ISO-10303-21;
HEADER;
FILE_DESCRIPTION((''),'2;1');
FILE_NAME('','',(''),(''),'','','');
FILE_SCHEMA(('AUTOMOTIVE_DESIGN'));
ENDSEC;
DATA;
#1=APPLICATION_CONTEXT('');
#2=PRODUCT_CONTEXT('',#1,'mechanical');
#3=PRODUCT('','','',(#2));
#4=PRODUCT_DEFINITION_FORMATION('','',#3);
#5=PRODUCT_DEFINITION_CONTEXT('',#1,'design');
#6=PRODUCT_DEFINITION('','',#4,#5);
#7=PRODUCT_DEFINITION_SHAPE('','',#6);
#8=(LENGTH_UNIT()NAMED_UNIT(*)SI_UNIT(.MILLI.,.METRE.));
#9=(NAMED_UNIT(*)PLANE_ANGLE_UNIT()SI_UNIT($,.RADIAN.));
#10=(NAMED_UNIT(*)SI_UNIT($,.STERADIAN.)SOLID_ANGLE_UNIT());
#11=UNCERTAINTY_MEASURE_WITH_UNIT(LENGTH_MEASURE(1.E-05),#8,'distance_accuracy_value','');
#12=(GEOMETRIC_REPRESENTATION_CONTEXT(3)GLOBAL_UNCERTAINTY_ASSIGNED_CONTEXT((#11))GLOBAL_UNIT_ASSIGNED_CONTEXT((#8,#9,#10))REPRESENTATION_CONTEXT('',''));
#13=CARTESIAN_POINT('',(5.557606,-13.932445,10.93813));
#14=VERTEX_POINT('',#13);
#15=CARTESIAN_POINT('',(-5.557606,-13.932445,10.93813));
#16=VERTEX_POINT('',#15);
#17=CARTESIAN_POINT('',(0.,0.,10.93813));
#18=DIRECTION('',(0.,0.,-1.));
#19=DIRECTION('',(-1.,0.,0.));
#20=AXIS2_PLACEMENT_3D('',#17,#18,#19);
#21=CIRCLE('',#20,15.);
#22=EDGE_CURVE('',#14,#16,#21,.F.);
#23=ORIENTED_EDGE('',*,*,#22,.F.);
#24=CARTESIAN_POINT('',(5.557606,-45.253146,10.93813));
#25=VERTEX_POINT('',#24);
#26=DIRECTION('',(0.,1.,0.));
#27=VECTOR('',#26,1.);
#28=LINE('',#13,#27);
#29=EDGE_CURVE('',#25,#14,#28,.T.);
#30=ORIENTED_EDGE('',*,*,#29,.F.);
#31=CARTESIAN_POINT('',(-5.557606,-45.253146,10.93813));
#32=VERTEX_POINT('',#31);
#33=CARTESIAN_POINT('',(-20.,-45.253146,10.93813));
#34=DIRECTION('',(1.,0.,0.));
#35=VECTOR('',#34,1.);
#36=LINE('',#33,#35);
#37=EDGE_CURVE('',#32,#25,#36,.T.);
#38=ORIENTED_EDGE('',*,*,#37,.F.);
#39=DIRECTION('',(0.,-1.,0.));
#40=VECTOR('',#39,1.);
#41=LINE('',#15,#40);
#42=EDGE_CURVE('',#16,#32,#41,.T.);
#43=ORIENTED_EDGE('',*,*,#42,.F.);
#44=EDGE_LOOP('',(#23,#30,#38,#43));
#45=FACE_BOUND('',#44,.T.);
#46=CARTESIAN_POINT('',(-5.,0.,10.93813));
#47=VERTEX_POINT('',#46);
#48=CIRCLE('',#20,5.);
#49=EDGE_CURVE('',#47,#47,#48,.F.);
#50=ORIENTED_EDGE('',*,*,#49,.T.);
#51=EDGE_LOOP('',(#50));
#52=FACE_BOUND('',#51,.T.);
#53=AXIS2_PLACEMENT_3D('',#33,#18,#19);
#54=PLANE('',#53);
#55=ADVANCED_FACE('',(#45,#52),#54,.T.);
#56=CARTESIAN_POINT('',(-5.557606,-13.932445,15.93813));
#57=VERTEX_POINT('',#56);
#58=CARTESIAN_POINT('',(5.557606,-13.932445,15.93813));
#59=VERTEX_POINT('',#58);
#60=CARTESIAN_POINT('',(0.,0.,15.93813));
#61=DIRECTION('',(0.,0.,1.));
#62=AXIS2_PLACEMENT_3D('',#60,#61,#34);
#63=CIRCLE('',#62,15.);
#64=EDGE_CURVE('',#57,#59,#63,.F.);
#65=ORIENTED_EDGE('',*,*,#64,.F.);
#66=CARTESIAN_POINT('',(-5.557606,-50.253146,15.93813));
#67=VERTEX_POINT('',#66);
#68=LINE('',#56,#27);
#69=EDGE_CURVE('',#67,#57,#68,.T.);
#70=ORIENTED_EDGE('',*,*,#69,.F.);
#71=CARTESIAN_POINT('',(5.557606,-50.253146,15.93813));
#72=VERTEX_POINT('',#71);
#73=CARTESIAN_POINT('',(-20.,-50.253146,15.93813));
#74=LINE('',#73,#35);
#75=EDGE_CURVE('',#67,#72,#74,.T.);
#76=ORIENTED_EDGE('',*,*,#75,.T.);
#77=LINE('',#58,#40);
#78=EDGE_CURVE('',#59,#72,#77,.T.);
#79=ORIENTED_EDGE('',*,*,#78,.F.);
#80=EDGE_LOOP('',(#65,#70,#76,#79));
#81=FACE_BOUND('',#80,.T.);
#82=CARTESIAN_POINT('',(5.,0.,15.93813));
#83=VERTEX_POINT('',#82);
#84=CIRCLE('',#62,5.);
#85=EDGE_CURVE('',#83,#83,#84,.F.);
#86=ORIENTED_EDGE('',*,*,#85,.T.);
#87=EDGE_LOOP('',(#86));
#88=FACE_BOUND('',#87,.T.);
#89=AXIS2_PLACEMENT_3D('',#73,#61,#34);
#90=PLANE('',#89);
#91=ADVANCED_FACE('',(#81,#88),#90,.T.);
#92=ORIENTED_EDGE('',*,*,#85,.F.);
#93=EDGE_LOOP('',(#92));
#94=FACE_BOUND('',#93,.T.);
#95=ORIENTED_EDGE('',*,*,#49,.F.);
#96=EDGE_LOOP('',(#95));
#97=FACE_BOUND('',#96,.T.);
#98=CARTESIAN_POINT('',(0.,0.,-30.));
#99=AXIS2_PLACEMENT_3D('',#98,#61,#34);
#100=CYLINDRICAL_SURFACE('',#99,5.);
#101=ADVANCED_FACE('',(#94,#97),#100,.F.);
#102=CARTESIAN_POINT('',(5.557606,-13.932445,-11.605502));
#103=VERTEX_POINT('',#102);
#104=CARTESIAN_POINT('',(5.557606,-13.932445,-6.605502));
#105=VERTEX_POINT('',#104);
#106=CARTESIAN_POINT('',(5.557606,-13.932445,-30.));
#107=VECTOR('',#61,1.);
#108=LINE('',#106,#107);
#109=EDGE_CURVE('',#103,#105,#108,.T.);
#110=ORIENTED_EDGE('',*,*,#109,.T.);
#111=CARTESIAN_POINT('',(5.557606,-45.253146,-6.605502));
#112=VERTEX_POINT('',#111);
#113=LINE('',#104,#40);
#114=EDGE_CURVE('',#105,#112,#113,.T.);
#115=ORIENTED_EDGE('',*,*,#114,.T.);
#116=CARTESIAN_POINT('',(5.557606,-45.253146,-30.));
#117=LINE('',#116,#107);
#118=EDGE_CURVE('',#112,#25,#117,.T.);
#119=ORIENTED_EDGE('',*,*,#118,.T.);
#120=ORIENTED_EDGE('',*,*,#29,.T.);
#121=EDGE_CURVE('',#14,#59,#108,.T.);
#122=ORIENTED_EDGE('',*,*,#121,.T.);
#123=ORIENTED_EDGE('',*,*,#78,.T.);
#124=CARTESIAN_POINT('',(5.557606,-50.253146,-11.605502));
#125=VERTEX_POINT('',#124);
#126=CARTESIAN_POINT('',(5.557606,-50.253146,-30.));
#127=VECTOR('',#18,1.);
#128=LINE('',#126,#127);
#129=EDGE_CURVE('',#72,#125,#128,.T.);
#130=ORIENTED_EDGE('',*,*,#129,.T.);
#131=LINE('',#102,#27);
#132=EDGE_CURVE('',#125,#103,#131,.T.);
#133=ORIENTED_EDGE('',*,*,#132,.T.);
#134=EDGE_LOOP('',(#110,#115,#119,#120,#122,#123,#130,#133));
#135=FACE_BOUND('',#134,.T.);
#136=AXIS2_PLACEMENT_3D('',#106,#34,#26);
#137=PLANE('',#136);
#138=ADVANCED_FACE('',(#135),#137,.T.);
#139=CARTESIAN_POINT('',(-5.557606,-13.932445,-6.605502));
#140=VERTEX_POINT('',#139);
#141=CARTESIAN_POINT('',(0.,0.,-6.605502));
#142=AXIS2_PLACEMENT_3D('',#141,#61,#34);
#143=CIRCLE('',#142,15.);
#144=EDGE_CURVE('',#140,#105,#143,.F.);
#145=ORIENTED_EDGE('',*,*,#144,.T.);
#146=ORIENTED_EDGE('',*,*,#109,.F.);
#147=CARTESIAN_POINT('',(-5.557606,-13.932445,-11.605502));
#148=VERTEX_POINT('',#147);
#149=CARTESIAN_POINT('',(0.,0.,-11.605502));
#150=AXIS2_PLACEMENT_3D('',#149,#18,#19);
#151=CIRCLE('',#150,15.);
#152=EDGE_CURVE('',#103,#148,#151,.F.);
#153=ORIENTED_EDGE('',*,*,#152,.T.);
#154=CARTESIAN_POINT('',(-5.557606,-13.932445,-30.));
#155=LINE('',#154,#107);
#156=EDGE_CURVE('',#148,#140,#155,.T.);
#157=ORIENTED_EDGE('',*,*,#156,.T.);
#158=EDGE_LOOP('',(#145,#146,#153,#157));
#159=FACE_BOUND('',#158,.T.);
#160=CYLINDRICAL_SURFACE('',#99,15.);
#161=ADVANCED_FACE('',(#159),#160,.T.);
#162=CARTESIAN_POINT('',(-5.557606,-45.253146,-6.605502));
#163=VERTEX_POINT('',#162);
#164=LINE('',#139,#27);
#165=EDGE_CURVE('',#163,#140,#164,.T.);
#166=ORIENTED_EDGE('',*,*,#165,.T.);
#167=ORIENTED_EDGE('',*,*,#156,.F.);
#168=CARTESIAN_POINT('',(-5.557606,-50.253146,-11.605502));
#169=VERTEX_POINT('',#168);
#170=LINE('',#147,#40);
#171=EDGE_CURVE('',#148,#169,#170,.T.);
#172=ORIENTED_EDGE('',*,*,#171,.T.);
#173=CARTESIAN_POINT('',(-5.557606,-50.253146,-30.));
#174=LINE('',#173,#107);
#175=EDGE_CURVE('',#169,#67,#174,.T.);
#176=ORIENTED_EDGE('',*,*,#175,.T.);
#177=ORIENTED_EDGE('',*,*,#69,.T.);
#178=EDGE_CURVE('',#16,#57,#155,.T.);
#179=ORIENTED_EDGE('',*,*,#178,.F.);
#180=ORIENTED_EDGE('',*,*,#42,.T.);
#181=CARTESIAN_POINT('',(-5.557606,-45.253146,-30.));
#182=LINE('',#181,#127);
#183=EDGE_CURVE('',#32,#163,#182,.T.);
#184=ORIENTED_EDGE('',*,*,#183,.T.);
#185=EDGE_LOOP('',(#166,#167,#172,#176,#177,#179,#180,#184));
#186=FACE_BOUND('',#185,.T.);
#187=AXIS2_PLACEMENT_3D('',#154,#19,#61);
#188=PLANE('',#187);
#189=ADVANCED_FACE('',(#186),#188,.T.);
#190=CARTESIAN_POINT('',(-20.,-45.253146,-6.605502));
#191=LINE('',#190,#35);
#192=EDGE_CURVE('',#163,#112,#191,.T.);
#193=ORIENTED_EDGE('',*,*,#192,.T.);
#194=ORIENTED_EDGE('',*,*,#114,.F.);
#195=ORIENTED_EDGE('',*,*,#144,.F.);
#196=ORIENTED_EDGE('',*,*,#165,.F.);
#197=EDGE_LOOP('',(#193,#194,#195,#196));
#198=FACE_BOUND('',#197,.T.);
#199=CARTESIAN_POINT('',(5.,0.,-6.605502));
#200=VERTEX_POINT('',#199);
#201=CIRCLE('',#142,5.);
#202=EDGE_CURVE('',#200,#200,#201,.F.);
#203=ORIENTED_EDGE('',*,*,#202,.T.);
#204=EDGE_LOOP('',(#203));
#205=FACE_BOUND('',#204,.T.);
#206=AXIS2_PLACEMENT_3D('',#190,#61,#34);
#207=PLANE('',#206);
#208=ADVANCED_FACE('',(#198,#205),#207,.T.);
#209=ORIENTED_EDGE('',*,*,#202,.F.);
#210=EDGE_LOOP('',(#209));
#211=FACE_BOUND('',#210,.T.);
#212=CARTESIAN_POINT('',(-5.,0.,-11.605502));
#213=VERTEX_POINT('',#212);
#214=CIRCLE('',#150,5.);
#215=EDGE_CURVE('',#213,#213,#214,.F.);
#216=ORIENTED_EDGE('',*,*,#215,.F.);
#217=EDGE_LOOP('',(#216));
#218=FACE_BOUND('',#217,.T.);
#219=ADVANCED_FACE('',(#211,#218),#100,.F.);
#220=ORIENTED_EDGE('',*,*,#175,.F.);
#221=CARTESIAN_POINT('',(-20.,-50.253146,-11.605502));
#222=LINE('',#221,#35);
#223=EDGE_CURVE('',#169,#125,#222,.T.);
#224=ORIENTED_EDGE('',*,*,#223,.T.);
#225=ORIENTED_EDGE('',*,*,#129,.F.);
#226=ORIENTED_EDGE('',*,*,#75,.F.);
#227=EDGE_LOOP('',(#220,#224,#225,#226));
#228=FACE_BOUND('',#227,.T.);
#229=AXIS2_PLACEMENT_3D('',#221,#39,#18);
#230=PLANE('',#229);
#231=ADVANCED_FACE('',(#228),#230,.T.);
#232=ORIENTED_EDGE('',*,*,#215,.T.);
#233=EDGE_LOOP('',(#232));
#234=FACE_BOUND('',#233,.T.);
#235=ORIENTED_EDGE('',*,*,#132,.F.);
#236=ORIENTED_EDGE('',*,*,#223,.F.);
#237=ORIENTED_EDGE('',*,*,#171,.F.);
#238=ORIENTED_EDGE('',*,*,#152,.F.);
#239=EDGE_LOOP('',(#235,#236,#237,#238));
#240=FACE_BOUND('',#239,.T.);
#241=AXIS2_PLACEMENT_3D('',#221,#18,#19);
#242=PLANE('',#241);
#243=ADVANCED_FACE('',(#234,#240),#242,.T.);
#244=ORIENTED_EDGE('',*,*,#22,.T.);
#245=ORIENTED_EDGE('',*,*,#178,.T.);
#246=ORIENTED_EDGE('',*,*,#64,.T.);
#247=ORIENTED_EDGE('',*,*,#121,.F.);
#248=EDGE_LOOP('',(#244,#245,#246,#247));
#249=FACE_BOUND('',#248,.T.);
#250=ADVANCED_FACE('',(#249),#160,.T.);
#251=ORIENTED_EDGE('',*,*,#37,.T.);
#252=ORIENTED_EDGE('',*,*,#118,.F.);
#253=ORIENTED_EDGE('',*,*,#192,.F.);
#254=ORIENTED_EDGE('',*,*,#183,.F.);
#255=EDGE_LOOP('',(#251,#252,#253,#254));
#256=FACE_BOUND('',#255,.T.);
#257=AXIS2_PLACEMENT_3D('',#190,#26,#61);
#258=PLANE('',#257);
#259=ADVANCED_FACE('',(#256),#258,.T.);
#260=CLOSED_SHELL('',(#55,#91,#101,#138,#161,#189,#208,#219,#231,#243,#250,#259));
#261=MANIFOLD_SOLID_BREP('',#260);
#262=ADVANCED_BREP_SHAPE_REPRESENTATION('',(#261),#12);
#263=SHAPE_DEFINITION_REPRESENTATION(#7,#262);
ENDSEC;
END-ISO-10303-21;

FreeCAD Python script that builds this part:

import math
import FreeCAD as App
import Part
import Sketcher

V = App.Vector
Q = App.Units.Quantity


def add_polygon(sketch, points):
    """Adds a closed chain of lines whose ends are joined by coincident constraints."""
    first, n = sketch.GeometryCount, len(points)
    for a, b in zip(points, points[1:] + points[:1]):
        sketch.addGeometry(Part.LineSegment(App.Vector(*a, 0), App.Vector(*b, 0)), False)
    for i in range(n):
        sketch.addConstraint(Sketcher.Constraint("Coincident", first + i, 2, first + (i + 1) % n, 1))

doc = App.newDocument("Part")
body = doc.addObject("PartDesign::Body", "Body")

sketch1 = doc.addObject("Sketcher::SketchObject", "Sketch")
body.addObject(sketch1)
sketch1.AttachmentSupport = (doc.XY_Plane, [""])
sketch1.MapMode = "FlatFace"
sketch1.addGeometry([
    Part.LineSegment(V(-6, -14, 0), V(-6, -63, 0)),
    Part.LineSegment(V(-6, -63, 0), V(6, -63, 0)),
    Part.LineSegment(V(6, -63, 0), V(6, -14, 0)),
    Part.ArcOfCircle(Part.Circle(V(0, 0, 0), V(0, 0, 1), 15), math.radians(-68), math.radians(248)),
    Part.Circle(V(0, 0, 0), V(0, 0, 1), 5),
], False)
sketch1.addConstraint([
    Sketcher.Constraint("Coincident", 0, 2, 1, 1),
    Sketcher.Constraint("Coincident", 1, 2, 2, 1),
    Sketcher.Constraint("Coincident", 2, 2, 3, 1),
    Sketcher.Constraint("Coincident", 3, 2, 0, 1),
    Sketcher.Constraint("Vertical", 0),
    Sketcher.Constraint("Horizontal", 1),
    Sketcher.Constraint("Vertical", 2),
    Sketcher.Constraint("Coincident", 3, 3, -1, 1),
    Sketcher.Constraint("Coincident", 4, 3, -1, 1),
    Sketcher.Constraint("Horizontal", 2, 2, 3, 2),
    Sketcher.Constraint("Diameter", 4, Q("10 mm")),
    Sketcher.Constraint("Radius", 3, Q("15 mm")),
    Sketcher.Constraint("DistanceX", 1, 1, 1, 2, Q("11.115213 mm")),
    Sketcher.Constraint("DistanceY", 0, 2, 0, 1, Q("48.709835 mm")),
])
pad1 = doc.addObject("PartDesign::Pad", "Pad")
body.addObject(pad1)
pad1.Profile = sketch1
pad1.Type = "TwoLengths"
pad1.Length = 30
pad1.Length2 = 30
body2 = doc.addObject("PartDesign::Body", "Body001")

sketch2 = doc.addObject("Sketcher::SketchObject", "Sketch001")
body2.addObject(sketch2)
sketch2.AttachmentSupport = (doc.getObject("YZ_Plane001"), [""])
sketch2.MapMode = "FlatFace"
add_polygon(sketch2, [(-50, 86), (-50, 58), (28, 58), (28, 63), (-45, 63), (-45, 81), (28, 81), (28, 86)])
sketch2.addConstraint([
    Sketcher.Constraint("Vertical", 0),
    Sketcher.Constraint("Horizontal", 1),
    Sketcher.Constraint("Vertical", 2),
    Sketcher.Constraint("Horizontal", 3),
    Sketcher.Constraint("Vertical", 4),
    Sketcher.Constraint("Horizontal", 5),
    Sketcher.Constraint("Vertical", 6),
    Sketcher.Constraint("Horizontal", 7),
    Sketcher.Constraint("Vertical", 2, 2, 5, 2),
    Sketcher.Constraint("Equal", 2, 6),
    Sketcher.Constraint("DistanceY", 2, 1, 2, 2, Q("5 mm")),
    Sketcher.Constraint("DistanceX", 0, 2, 3, 2, Q("5 mm")),
    Sketcher.Constraint("DistanceX", 1, 1, 1, 2, Q("77.833611 mm")),
    Sketcher.Constraint("DistanceY", -1, 1, 0, 2, Q("58.394498 mm")),
    Sketcher.Constraint("DistanceY", 0, 2, 0, 1, Q("27.543632 mm")),
    Sketcher.Constraint("DistanceX", 0, 2, -1, 1, Q("50.253146 mm")),
])
pad2 = doc.addObject("PartDesign::Pad", "Pad001")
body2.addObject(pad2)
pad2.Profile = sketch2
pad2.Type = "TwoLengths"
pad2.Length = 20
pad2.Length2 = 20
body3 = doc.addObject("PartDesign::Body", "Body002")
doc.recompute()

body2.Placement = App.Placement(V(0, 0, -70), App.Rotation(V(0, 0, 1), 0))
boolean = doc.addObject("PartDesign::Boolean", "Boolean")
body3.addObject(boolean)
boolean.Type = "Fuse"
boolean.addObjects([body2])
doc.recompute()

boolean2 = doc.addObject("PartDesign::Boolean", "Boolean001")
body.addObject(boolean2)
boolean2.Type = "Common"
boolean2.addObjects([body3])

doc.recompute()
